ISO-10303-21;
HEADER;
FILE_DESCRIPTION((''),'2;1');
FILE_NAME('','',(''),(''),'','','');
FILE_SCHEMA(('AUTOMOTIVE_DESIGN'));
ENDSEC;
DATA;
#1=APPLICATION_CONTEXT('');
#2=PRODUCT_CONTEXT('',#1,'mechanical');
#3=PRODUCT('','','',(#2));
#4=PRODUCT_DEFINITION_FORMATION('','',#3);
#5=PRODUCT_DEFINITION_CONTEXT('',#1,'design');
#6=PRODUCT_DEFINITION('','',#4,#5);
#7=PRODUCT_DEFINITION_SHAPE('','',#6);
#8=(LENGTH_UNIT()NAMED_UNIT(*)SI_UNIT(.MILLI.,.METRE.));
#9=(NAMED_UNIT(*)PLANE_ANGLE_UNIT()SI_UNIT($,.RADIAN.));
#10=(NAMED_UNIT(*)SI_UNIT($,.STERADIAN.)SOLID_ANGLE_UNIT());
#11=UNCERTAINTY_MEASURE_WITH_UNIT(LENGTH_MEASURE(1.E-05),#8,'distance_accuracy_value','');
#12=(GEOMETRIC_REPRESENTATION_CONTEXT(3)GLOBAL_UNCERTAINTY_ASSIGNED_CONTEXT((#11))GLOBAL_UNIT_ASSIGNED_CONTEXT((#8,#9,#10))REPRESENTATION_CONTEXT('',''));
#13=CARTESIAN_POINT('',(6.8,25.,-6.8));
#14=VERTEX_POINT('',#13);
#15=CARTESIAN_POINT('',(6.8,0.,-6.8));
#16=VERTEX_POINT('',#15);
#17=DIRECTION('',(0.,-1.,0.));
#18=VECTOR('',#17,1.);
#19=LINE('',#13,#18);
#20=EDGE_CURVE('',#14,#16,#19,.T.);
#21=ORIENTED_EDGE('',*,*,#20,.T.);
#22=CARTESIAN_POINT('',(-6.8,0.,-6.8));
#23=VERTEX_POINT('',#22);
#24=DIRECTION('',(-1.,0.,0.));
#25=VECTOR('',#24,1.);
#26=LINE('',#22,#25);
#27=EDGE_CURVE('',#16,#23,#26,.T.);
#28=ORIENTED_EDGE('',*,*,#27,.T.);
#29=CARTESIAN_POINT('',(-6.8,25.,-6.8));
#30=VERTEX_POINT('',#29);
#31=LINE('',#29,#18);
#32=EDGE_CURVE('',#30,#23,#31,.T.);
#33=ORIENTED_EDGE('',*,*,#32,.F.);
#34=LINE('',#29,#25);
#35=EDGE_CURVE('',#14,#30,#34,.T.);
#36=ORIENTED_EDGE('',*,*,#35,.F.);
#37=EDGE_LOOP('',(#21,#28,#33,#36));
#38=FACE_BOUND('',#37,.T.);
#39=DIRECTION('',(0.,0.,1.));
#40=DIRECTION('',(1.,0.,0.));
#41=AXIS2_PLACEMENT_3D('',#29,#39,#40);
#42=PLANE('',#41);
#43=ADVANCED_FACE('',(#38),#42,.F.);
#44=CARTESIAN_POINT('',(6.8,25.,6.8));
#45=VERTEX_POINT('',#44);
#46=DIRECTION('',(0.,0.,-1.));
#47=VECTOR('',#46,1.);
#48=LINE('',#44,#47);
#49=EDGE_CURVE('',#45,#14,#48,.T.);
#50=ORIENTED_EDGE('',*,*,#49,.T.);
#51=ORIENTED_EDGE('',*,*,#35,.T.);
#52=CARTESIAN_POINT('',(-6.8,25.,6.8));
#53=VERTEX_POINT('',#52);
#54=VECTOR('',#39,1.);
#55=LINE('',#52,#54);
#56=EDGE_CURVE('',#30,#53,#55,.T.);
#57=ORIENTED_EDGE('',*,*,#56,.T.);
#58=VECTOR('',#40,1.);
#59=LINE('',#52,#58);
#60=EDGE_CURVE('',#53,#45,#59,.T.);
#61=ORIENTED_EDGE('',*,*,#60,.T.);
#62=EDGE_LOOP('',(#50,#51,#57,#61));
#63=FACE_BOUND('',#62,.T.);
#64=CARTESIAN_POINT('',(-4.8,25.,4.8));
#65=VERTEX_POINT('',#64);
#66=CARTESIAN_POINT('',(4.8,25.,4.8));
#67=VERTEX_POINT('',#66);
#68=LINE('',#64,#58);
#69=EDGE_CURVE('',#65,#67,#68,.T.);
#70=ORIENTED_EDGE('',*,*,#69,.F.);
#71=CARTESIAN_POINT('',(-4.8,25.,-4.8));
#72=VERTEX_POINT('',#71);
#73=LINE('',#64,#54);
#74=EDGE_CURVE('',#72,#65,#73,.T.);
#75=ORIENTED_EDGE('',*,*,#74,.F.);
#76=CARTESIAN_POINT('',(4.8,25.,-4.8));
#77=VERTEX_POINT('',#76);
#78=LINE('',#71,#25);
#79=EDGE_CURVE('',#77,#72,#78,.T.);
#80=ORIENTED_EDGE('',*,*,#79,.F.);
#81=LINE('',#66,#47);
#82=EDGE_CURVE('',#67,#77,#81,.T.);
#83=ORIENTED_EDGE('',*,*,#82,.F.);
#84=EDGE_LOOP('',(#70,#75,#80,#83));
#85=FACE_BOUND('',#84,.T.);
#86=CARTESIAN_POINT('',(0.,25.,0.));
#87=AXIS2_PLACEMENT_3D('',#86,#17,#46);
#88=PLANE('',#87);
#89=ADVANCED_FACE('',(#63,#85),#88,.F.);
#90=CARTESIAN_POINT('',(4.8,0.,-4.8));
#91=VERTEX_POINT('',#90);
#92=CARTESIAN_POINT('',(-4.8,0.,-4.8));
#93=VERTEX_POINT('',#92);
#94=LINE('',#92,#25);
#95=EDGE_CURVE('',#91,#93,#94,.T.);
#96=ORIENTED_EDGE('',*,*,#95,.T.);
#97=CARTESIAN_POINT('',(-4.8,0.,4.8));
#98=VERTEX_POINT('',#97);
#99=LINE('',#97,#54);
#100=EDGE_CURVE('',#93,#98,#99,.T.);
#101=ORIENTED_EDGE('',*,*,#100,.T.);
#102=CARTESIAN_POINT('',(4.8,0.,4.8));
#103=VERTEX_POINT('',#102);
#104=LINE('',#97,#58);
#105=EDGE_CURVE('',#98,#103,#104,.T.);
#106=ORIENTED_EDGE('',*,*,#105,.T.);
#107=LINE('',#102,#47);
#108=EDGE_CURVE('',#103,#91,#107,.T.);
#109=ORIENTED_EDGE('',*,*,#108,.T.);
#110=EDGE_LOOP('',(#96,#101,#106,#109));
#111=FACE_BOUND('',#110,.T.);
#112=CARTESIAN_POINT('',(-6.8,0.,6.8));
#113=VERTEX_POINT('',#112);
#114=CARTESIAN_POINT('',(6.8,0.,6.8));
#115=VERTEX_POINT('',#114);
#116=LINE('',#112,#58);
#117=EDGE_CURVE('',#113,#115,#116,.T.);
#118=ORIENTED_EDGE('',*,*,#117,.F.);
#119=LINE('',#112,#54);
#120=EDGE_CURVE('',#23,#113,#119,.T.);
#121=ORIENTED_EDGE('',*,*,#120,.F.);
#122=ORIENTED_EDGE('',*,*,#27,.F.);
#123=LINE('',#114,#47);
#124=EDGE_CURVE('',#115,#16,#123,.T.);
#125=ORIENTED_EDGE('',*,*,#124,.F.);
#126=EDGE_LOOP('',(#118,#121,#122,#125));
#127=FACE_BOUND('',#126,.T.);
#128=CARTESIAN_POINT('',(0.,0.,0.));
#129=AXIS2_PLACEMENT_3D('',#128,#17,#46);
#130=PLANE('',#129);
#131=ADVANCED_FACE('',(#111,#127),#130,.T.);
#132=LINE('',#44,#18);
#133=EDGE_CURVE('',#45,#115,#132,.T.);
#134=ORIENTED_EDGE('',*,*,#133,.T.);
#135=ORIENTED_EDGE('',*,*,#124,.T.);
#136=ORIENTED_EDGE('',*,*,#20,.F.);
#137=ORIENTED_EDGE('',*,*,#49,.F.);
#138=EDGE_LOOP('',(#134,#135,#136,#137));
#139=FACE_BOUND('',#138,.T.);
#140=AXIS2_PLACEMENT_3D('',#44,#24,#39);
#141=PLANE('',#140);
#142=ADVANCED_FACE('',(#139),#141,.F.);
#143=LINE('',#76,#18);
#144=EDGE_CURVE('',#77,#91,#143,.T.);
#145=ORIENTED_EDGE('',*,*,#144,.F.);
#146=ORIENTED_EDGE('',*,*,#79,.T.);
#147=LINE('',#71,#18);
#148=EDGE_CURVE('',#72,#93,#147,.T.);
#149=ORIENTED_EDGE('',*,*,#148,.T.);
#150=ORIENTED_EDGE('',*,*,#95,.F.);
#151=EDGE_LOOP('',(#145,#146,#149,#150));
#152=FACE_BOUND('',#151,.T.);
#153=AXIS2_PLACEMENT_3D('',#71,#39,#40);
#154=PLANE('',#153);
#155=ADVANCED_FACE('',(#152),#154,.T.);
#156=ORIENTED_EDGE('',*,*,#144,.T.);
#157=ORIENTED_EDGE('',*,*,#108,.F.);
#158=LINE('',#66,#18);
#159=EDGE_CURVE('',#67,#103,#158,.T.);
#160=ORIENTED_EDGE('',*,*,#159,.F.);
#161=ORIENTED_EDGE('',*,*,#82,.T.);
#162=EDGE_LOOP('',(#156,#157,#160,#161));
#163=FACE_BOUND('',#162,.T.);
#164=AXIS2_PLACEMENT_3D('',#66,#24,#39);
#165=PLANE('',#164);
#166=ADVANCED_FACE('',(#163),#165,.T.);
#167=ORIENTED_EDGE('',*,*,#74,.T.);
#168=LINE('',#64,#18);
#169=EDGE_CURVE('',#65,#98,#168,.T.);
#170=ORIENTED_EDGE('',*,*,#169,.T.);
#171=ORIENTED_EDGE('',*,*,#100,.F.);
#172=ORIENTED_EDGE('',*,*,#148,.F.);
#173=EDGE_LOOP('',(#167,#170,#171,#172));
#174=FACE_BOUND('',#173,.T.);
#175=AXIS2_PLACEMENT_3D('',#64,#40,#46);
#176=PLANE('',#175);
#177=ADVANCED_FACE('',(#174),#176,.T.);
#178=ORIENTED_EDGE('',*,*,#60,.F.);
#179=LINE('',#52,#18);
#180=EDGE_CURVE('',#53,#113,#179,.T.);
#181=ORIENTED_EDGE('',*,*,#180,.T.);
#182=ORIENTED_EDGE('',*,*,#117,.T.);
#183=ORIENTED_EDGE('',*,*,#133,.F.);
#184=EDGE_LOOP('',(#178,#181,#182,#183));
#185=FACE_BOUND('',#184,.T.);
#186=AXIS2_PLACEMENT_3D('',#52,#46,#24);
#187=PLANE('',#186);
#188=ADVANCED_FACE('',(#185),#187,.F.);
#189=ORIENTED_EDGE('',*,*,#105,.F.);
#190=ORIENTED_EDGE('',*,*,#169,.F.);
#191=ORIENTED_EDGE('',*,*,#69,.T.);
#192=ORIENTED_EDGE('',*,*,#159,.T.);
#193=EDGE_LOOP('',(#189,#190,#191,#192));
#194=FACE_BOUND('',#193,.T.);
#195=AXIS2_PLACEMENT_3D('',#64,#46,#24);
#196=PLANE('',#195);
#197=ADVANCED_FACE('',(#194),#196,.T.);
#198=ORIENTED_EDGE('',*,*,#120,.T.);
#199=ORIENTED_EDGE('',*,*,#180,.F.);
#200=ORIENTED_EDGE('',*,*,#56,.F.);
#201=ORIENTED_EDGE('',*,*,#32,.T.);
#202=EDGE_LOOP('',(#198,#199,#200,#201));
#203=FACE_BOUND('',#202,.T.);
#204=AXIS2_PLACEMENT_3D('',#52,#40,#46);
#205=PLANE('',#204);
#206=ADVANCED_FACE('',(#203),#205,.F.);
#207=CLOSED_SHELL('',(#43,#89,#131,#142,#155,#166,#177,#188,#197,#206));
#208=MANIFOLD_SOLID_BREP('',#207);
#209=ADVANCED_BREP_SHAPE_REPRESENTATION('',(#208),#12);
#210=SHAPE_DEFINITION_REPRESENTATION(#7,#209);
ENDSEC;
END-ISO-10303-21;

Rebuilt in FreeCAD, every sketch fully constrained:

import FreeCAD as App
import Part
import Sketcher

V = App.Vector

doc = App.newDocument("Part")
body = doc.addObject("PartDesign::Body", "Body")

# Sketch on XZ plane
sketch1 = body.newObject("Sketcher::SketchObject", "Sketch")
sketch1.AttachmentSupport = (doc.getObject("XZ_Plane"), [""])
sketch1.MapMode = "FlatFace"
sketch1.addGeometry([
    Part.LineSegment(V(-7, -7, 0), V(-7, 7, 0)),  # 0
    Part.LineSegment(V(-7, 7, 0), V(7, 7, 0)),  # 1
    Part.LineSegment(V(7, 7, 0), V(7, -7, 0)),  # 2
    Part.LineSegment(V(7, -7, 0), V(-7, -7, 0)),  # 3
    Part.LineSegment(V(5, 5, 0), V(-5, 5, 0)),  # 4
    Part.LineSegment(V(-5, 5, 0), V(-5, -5, 0)),  # 5
    Part.LineSegment(V(-5, -5, 0), V(5, -5, 0)),  # 6
    Part.LineSegment(V(5, -5, 0), V(5, 5, 0)),  # 7
], False)
sketch1.addConstraint([
    Sketcher.Constraint("Coincident", 0, 2, 1, 1),
    Sketcher.Constraint("Coincident", 1, 2, 2, 1),
    Sketcher.Constraint("Coincident", 2, 2, 3, 1),
    Sketcher.Constraint("Coincident", 3, 2, 0, 1),
    Sketcher.Constraint("Coincident", 4, 2, 5, 1),
    Sketcher.Constraint("Coincident", 5, 2, 6, 1),
    Sketcher.Constraint("Coincident", 6, 2, 7, 1),
    Sketcher.Constraint("Coincident", 7, 2, 4, 1),
    Sketcher.Constraint("Vertical", 0),
    Sketcher.Constraint("Horizontal", 1),
    Sketcher.Constraint("Vertical", 2),
    Sketcher.Constraint("Horizontal", 3),
    Sketcher.Constraint("Horizontal", 4),
    Sketcher.Constraint("Vertical", 5),
    Sketcher.Constraint("Horizontal", 6),
    Sketcher.Constraint("Vertical", 7),
    Sketcher.Constraint("Symmetric", 0, 2, 2, 2, -1, 1),
    Sketcher.Constraint("Symmetric", 4, 2, 6, 2, -1, 1),
    Sketcher.Constraint("Equal", 3, 0),
    Sketcher.Constraint("Equal", 6, 5),
    Sketcher.Constraint("DistanceX", 1, 1, 1, 2, 13.6),
    Sketcher.Constraint("DistanceX", 4, 2, 4, 1, 9.6),
])
pad1 = body.newObject("PartDesign::Pad", "Pad")
pad1.Profile = sketch1
pad1.Length = 25
pad1.Reversed = True

doc.recompute()
